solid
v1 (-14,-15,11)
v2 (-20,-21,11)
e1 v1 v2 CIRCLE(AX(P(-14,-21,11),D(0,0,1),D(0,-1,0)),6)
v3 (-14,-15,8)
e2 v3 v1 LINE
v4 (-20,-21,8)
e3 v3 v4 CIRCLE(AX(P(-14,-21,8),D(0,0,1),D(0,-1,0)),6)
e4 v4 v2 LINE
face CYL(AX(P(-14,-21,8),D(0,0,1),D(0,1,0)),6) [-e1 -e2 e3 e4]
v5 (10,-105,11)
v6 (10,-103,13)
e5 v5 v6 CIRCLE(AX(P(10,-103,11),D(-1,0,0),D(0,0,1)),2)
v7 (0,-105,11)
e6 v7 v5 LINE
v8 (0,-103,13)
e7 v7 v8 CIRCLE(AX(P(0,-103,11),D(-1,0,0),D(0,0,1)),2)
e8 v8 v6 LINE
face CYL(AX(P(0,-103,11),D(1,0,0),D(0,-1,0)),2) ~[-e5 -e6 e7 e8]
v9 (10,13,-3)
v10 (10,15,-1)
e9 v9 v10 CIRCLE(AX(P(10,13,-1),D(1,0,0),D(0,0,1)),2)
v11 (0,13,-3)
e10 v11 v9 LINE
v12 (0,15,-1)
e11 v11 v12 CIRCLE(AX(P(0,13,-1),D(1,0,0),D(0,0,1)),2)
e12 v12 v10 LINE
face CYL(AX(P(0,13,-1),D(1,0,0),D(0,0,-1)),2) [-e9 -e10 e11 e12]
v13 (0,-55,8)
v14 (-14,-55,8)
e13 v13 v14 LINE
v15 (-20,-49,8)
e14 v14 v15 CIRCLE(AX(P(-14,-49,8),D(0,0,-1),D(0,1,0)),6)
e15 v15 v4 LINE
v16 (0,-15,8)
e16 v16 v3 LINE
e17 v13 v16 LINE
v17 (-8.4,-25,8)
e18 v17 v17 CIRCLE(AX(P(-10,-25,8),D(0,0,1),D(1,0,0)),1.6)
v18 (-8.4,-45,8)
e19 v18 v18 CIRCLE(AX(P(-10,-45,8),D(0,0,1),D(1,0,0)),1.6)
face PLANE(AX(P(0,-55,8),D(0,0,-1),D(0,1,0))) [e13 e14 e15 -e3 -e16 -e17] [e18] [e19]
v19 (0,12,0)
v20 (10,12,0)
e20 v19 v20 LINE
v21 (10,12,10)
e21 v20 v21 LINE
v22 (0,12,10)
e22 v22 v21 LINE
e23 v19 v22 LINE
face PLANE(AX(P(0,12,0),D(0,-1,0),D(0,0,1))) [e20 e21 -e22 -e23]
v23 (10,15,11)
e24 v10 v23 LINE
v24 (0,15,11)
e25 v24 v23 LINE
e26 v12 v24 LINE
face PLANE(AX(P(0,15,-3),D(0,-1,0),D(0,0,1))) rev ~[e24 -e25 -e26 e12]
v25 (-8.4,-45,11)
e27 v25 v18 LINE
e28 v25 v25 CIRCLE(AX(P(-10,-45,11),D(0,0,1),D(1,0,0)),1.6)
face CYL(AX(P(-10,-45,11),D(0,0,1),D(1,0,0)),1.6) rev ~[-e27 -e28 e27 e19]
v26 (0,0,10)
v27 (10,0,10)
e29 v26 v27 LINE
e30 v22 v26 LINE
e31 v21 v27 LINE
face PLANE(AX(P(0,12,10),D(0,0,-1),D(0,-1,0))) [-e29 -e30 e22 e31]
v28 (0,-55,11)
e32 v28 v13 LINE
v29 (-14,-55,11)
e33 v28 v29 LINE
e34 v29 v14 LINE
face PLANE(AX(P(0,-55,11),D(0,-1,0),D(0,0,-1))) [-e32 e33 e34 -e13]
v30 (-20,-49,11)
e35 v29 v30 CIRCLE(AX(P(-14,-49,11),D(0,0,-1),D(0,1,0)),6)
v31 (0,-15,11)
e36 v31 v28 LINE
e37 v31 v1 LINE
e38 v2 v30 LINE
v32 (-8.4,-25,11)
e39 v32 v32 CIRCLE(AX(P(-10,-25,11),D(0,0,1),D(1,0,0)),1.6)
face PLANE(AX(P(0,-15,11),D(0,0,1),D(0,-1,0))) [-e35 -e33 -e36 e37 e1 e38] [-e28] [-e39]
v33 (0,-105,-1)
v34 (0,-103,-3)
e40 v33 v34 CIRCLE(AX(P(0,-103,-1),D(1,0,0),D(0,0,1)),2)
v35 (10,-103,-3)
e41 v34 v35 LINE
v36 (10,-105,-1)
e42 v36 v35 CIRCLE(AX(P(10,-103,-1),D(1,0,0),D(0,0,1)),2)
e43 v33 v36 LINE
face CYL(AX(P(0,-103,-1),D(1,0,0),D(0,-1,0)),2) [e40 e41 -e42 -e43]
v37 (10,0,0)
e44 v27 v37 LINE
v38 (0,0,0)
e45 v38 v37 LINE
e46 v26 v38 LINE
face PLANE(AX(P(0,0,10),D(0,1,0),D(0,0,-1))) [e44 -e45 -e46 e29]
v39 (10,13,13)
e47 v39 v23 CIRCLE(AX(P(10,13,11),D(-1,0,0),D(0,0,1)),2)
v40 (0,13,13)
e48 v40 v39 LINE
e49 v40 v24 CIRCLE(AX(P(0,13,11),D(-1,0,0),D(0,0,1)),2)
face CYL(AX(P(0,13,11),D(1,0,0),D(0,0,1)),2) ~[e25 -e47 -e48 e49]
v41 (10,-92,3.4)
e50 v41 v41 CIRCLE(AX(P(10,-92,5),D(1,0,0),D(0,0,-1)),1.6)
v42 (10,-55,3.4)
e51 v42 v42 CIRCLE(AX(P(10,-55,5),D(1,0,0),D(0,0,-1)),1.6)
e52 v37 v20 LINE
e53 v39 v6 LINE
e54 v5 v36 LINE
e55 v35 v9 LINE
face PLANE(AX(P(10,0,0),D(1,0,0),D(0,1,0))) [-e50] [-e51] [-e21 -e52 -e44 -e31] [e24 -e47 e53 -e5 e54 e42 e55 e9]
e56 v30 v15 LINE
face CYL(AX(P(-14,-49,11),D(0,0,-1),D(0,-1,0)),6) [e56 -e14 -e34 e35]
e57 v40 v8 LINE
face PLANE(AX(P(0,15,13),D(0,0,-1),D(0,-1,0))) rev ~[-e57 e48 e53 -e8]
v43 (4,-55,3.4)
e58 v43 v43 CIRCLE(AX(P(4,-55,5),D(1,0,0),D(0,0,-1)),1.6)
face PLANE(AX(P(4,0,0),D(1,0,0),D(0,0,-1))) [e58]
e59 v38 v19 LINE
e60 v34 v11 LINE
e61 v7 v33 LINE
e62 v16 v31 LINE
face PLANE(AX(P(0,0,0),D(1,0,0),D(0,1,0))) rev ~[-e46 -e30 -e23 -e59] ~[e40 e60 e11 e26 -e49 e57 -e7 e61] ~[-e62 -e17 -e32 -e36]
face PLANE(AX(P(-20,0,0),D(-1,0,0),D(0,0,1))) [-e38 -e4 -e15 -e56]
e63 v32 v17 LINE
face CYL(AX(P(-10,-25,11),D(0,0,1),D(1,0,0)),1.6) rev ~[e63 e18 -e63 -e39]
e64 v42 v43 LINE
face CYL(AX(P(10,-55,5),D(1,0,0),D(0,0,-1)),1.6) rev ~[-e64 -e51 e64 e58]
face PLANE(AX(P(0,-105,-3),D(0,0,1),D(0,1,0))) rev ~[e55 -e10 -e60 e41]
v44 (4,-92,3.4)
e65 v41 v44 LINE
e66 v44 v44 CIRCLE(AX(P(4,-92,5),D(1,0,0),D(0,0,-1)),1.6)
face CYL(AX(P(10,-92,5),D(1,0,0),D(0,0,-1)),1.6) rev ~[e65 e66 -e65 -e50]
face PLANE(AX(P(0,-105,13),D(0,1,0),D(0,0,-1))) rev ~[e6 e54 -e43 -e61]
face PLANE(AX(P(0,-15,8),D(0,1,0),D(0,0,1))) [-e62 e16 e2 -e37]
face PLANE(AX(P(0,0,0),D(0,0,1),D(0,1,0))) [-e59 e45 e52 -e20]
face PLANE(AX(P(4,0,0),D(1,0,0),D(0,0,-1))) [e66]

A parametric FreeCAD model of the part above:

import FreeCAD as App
import Part
import Sketcher
from FreeCAD import Vector


def edges_at(feature, points):
    """Names of the edges that pass closest to the given points."""
    edges = feature.Shape.Edges
    near = lambda p: min(range(len(edges)), key=lambda i: edges[i].distToShape(Part.Vertex(*p))[0])
    return sorted({f"Edge{near(p) + 1}" for p in points})

doc = App.newDocument("Part")
body = doc.addObject("PartDesign::Body", "Body")

sketch1 = body.newObject("Sketcher::SketchObject", "Sketch")
sketch1.AttachmentSupport = (doc.getObject("YZ_Plane"), [""])
sketch1.MapMode = "FlatFace"
sketch1.addGeometry([
    Part.LineSegment(Vector(-105, 13, 0), Vector(-105, -3, 0)),
    Part.LineSegment(Vector(-105, -3, 0), Vector(15, -3, 0)),
    Part.LineSegment(Vector(15, -3, 0), Vector(15, 13, 0)),
    Part.LineSegment(Vector(15, 13, 0), Vector(-105, 13, 0)),
    Part.LineSegment(Vector(12, 0, 0), Vector(0, 0, 0)),
    Part.LineSegment(Vector(0, 0, 0), Vector(0, 10, 0)),
    Part.LineSegment(Vector(0, 10, 0), Vector(12, 10, 0)),
    Part.LineSegment(Vector(12, 10, 0), Vector(12, 0, 0)),
], False)
sketch1.addConstraint([
    Sketcher.Constraint("Coincident", 0, 2, 1, 1),
    Sketcher.Constraint("Coincident", 1, 2, 2, 1),
    Sketcher.Constraint("Coincident", 2, 2, 3, 1),
    Sketcher.Constraint("Coincident", 3, 2, 0, 1),
    Sketcher.Constraint("Coincident", 4, 2, 5, 1),
    Sketcher.Constraint("Coincident", 5, 2, 6, 1),
    Sketcher.Constraint("Coincident", 6, 2, 7, 1),
    Sketcher.Constraint("Coincident", 7, 2, 4, 1),
    Sketcher.Constraint("Vertical", 0),
    Sketcher.Constraint("Horizontal", 1),
    Sketcher.Constraint("Vertical", 2),
    Sketcher.Constraint("Horizontal", 3),
    Sketcher.Constraint("Horizontal", 4),
    Sketcher.Constraint("Vertical", 5),
    Sketcher.Constraint("Horizontal", 6),
    Sketcher.Constraint("Vertical", 7),
    Sketcher.Constraint("Coincident", 4, 2, -1, 1),
    Sketcher.Constraint("DistanceX", 1, 1, 1, 2, 120.0),
    Sketcher.Constraint("DistanceX", 4, 2, 4, 1, 12.0),
    Sketcher.Constraint("DistanceY", 0, 2, 0, 1, 16.0),
    Sketcher.Constraint("DistanceY", 5, 1, 5, 2, 10.0),
    Sketcher.Constraint("DistanceY", 0, 2, -1, 1, 3.0),
    Sketcher.Constraint("DistanceX", 6, 2, 2, 2, 3.0),
])
pad1 = body.newObject("PartDesign::Pad", "Pad")
pad1.Profile = sketch1
pad1.Length = 10

sketch2 = body.newObject("Sketcher::SketchObject", "Sketch001")
sketch2.AttachmentSupport = (doc.getObject("YZ_Plane"), [""])
sketch2.MapMode = "FlatFace"
sketch2.AttachmentOffset = App.Placement(Vector(0, 0, 10), App.Rotation())
sketch2.addGeometry([
    Part.Circle(Vector(-92, 5, 0), Vector(0, 0, 1), 1.6),
    Part.Circle(Vector(-55, 5, 0), Vector(0, 0, 1), 1.6),
], False)
sketch2.addConstraint([
    Sketcher.Constraint("Equal", 0, 1),
    Sketcher.Constraint("Horizontal", 0, 3, 1, 3),
    Sketcher.Constraint("Diameter", 0, 3.2),
    Sketcher.Constraint("DistanceX", 1, 3, -1, 1, 55.0),
    Sketcher.Constraint("DistanceX", 0, 3, 1, 3, 37.0),
    Sketcher.Constraint("DistanceY", -1, 1, 0, 3, 5.0),
])
pocket1 = body.newObject("PartDesign::Pocket", "Pocket")
pocket1.Profile = sketch2
pocket1.Length = 6

sketch3 = body.newObject("Sketcher::SketchObject", "Sketch002")
sketch3.AttachmentSupport = (doc.getObject("YZ_Plane"), [""])
sketch3.MapMode = "FlatFace"
sketch3.addGeometry([
    Part.LineSegment(Vector(-15, 11, 0), Vector(-15, 8, 0)),
    Part.LineSegment(Vector(-15, 8, 0), Vector(-55, 8, 0)),
    Part.LineSegment(Vector(-55, 8, 0), Vector(-55, 11, 0)),
    Part.LineSegment(Vector(-55, 11, 0), Vector(-15, 11, 0)),
], False)
sketch3.addConstraint([
    Sketcher.Constraint("Coincident", 0, 2, 1, 1),
    Sketcher.Constraint("Coincident", 1, 2, 2, 1),
    Sketcher.Constraint("Coincident", 2, 2, 3, 1),
    Sketcher.Constraint("Coincident", 3, 2, 0, 1),
    Sketcher.Constraint("Vertical", 0),
    Sketcher.Constraint("Horizontal", 1),
    Sketcher.Constraint("Vertical", 2),
    Sketcher.Constraint("Horizontal", 3),
    Sketcher.Constraint("DistanceX", 1, 2, 1, 1, 40.0),
    Sketcher.Constraint("DistanceY", 0, 2, 0, 1, 3.0),
    Sketcher.Constraint("DistanceX", 0, 2, -1, 1, 15.0),
    Sketcher.Constraint("DistanceY", -1, 1, 0, 2, 8.0),
])
pad2 = body.newObject("PartDesign::Pad", "Pad001")
pad2.Profile = sketch3
pad2.Length = 20
pad2.Reversed = True
doc.recompute()

fillet = body.newObject("PartDesign::Fillet", "Fillet")
fillet.Base = (pad2, edges_at(pad2, [(-20, -55, 9.5), (-20, -15, 9.5)]))
fillet.Radius = 6
doc.recompute()

fillet2 = body.newObject("PartDesign::Fillet", "Fillet001")
fillet2.Base = (fillet, edges_at(fillet, [
    (5, -105, 13),
    (5, 15, 13),
    (5, 15, -3),
    (5, -105, -3),
]))
fillet2.Radius = 2

sketch4 = body.newObject("Sketcher::SketchObject", "Sketch003")
sketch4.AttachmentSupport = (doc.getObject("XY_Plane"), [""])
sketch4.MapMode = "FlatFace"
sketch4.AttachmentOffset = App.Placement(Vector(0, 0, 11), App.Rotation())
sketch4.addGeometry([
    Part.Circle(Vector(-10, -45, 0), Vector(0, 0, 1), 1.6),
    Part.Circle(Vector(-10, -25, 0), Vector(0, 0, 1), 1.6),
], False)
sketch4.addConstraint([
    Sketcher.Constraint("Equal", 0, 1),
    Sketcher.Constraint("Vertical", 0, 3, 1, 3),
    Sketcher.Constraint("Diameter", 0, 3.2),
    Sketcher.Constraint("DistanceX", 0, 3, -1, 1, 10.0),
    Sketcher.Constraint("DistanceY", 0, 3, -1, 1, 45.0),
    Sketcher.Constraint("DistanceY", 1, 3, -1, 1, 25.0),
])
pocket2 = body.newObject("PartDesign::Pocket", "Pocket001")
pocket2.Profile = sketch4
pocket2.Type = "ThroughAll"

doc.recompute()
